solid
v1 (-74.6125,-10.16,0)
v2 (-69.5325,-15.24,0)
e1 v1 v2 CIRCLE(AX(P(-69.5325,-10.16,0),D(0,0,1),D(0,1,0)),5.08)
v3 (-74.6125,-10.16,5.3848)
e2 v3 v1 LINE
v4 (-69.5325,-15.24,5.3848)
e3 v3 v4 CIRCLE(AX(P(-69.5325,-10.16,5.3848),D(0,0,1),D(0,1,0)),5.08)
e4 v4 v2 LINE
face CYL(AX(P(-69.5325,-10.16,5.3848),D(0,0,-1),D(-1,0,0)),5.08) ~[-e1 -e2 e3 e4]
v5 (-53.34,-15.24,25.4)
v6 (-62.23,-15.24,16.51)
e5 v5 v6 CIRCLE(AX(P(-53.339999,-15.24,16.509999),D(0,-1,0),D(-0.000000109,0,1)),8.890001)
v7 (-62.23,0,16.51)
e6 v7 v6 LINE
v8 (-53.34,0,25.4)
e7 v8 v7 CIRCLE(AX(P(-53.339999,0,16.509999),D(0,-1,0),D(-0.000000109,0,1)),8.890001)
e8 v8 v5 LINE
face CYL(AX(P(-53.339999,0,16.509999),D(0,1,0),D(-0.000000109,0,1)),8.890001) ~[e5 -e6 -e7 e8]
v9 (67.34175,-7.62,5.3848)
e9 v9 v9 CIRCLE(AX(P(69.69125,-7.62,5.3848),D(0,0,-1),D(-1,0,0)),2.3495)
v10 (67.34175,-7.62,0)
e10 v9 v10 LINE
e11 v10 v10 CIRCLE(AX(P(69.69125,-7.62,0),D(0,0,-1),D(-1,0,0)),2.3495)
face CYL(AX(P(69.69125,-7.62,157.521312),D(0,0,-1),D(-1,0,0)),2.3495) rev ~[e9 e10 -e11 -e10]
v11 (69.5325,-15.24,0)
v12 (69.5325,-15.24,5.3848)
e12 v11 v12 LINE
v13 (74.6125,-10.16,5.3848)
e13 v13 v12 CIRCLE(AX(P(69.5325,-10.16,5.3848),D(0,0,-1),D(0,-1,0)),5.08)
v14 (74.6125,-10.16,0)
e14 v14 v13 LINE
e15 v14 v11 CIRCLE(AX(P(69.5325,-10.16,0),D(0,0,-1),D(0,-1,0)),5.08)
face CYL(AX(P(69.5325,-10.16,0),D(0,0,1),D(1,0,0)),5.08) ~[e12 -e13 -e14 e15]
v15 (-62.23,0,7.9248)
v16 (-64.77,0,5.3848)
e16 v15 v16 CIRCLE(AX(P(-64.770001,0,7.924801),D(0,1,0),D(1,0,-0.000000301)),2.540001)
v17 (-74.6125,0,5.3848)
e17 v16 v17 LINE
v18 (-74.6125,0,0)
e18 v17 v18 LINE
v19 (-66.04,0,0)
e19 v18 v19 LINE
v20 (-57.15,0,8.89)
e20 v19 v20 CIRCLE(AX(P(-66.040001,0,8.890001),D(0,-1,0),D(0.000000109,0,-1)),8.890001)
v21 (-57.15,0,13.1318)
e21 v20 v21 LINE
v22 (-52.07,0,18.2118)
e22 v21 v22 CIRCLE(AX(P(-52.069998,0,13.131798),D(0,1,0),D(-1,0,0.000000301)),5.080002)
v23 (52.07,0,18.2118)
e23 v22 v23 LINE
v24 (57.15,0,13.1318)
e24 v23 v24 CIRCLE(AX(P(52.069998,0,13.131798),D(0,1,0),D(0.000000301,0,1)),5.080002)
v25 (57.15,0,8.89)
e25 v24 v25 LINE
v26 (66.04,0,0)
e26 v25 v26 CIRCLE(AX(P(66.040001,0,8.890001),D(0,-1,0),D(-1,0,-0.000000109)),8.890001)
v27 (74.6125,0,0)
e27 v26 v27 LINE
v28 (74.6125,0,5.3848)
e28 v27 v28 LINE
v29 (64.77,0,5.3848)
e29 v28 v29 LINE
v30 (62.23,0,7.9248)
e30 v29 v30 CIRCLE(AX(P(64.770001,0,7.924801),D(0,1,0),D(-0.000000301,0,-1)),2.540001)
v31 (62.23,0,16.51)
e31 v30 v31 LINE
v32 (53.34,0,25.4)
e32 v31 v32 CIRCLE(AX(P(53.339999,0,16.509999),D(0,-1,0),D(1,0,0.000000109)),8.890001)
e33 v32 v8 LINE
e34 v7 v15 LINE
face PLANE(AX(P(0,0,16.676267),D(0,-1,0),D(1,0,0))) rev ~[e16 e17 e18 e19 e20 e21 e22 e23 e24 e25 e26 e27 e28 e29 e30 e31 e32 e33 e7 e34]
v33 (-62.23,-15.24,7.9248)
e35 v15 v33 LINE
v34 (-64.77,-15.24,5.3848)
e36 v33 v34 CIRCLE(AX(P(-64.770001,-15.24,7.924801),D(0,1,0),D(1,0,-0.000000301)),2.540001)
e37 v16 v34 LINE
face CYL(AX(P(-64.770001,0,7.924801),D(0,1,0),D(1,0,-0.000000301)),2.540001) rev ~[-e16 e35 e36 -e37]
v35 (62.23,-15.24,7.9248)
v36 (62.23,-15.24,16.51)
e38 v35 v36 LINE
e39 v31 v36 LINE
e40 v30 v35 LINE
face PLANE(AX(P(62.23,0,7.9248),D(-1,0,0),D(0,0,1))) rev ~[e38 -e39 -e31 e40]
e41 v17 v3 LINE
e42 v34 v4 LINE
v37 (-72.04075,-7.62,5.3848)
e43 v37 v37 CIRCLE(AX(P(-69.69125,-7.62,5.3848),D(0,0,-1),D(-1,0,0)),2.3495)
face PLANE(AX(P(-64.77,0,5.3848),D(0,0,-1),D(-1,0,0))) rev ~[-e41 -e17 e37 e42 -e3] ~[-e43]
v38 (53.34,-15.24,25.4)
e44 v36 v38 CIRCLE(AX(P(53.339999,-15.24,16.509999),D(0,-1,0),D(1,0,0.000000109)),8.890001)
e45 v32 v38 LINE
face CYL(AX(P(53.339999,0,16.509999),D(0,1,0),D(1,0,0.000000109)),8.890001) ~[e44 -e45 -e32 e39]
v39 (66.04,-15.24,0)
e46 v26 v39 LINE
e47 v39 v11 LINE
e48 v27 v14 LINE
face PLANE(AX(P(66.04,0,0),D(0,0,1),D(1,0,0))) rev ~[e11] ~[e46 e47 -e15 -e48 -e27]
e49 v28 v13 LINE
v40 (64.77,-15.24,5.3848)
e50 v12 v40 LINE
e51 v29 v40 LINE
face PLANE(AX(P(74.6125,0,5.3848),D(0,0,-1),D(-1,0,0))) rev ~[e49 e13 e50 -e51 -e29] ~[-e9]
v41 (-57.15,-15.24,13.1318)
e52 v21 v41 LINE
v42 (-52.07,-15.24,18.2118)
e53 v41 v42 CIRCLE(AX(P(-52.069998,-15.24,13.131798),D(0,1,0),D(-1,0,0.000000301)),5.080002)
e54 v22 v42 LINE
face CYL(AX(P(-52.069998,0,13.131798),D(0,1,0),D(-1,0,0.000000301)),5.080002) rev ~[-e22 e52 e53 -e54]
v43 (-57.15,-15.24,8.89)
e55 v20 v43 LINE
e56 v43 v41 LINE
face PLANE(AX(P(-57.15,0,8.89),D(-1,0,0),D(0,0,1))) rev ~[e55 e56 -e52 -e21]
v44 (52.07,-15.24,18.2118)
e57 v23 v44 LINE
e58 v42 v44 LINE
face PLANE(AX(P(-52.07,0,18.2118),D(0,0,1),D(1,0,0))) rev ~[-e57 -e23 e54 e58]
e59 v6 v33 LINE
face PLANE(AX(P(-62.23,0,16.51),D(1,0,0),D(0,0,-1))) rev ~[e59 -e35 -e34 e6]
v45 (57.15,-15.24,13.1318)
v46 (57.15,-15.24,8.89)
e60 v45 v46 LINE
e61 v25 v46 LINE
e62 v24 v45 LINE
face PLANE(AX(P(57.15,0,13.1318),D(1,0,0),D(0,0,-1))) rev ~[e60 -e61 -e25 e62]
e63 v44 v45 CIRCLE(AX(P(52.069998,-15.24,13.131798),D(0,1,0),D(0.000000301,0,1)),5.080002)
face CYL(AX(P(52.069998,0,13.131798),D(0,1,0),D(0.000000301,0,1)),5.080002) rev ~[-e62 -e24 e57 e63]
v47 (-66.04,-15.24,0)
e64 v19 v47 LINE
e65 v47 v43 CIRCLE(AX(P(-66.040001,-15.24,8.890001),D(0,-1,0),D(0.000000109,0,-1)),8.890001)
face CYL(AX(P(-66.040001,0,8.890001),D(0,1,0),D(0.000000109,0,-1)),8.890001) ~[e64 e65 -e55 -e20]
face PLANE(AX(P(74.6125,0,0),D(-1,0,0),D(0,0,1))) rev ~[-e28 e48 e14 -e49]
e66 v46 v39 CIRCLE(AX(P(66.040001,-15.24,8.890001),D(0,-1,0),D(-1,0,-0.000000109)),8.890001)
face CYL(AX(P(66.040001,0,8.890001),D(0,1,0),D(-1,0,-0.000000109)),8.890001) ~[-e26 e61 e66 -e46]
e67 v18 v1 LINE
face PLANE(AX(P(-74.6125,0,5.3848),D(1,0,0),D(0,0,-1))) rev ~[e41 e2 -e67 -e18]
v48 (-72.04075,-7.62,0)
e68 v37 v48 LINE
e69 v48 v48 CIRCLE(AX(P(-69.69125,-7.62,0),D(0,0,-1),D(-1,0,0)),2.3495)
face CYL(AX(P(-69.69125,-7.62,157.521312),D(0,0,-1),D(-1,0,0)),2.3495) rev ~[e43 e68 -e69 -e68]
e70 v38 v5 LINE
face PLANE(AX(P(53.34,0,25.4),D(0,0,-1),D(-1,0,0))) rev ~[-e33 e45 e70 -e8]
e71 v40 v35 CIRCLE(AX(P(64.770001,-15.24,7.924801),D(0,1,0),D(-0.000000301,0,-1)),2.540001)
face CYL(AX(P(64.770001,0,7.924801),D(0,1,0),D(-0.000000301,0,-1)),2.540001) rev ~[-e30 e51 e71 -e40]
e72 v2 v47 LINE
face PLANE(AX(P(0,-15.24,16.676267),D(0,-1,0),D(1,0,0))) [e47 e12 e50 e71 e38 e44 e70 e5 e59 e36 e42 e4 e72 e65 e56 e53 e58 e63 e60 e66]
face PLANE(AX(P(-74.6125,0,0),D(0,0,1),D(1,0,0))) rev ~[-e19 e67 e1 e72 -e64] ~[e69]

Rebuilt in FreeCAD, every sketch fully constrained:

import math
import FreeCAD as App
import Part
import Sketcher
Q = App.Units.Quantity


def edges_at(feature, points):
    """Names of the edges that pass closest to the given points."""
    edges = feature.Shape.Edges
    near = lambda p: min(range(len(edges)), key=lambda i: edges[i].distToShape(Part.Vertex(*p))[0])
    return sorted({f"Edge{near(p) + 1}" for p in points})

doc = App.newDocument("Part")
params = doc.addObject("Spreadsheet::Sheet", "Params")
for row, (alias, value) in enumerate([
    ("sketch1_radius", "0.1 in"),
    ("sketch1_radius2", "0.2000001 in"),
    ("sketch1_radius3", "0.35 in"),
    ("sketch1_width", "4.2 in"),
    ("sketch1_width2", "4.1 in"),
    ("pad1_length", "0.6 in"),
    ("fillet_radius", "0.2 in"),
    ("sketch2_diameter", "0.185 in"),
    ("hole_diameter", "0.185 in"),
], start=1):
    params.set(f"A{row}", alias)
    params.set(f"B{row}", "=" + value)
    params.setAlias(f"B{row}", alias)

body = doc.addObject("PartDesign::Body", "Body")

sketch1 = body.newObject("Sketcher::SketchObject", "Sketch")
sketch1.AttachmentSupport = (doc.getObject("XZ_Plane"), [""])
sketch1.MapMode = "FlatFace"
sketch1.addGeometry([
    Part.LineSegment(App.Vector(53.3, 25.4, 0), App.Vector(-53.3, 25.4, 0)),
    Part.ArcOfCircle(Part.Circle(App.Vector(-53.3, 16.5, 0), App.Vector(0, 0, 1), 8.9), math.radians(90), math.radians(180)),
    Part.LineSegment(App.Vector(-62.2, 16.5, 0), App.Vector(-62.2, 7.9, 0)),
    Part.ArcOfCircle(Part.Circle(App.Vector(-64.8, 7.9, 0), App.Vector(0, 0, 1), 2.5), math.radians(-90), math.radians(0)),
    Part.LineSegment(App.Vector(-64.8, 5.4, 0), App.Vector(-74.6, 5.4, 0)),
    Part.LineSegment(App.Vector(-74.6, 5.4, 0), App.Vector(-74.6, 0, 0)),
    Part.LineSegment(App.Vector(-74.6, 0, 0), App.Vector(-66, 0, 0)),
    Part.ArcOfCircle(Part.Circle(App.Vector(-66, 8.9, 0), App.Vector(0, 0, 1), 8.9), math.radians(-90), math.radians(0)),
    Part.LineSegment(App.Vector(-57.1, 8.9, 0), App.Vector(-57.1, 13.1, 0)),
    Part.ArcOfCircle(Part.Circle(App.Vector(-52.1, 13.1, 0), App.Vector(0, 0, 1), 5.1), math.radians(90), math.radians(180)),
    Part.LineSegment(App.Vector(-52.1, 18.2, 0), App.Vector(52.1, 18.2, 0)),
    Part.ArcOfCircle(Part.Circle(App.Vector(52.1, 13.1, 0), App.Vector(0, 0, 1), 5.1), math.radians(0), math.radians(90)),
    Part.LineSegment(App.Vector(57.1, 13.1, 0), App.Vector(57.1, 8.9, 0)),
    Part.ArcOfCircle(Part.Circle(App.Vector(66, 8.9, 0), App.Vector(0, 0, 1), 8.9), math.radians(-180), math.radians(-90)),
    Part.LineSegment(App.Vector(66, 0, 0), App.Vector(74.6, 0, 0)),
    Part.LineSegment(App.Vector(74.6, 0, 0), App.Vector(74.6, 5.4, 0)),
    Part.LineSegment(App.Vector(74.6, 5.4, 0), App.Vector(64.8, 5.4, 0)),
    Part.ArcOfCircle(Part.Circle(App.Vector(64.8, 7.9, 0), App.Vector(0, 0, 1), 2.5), math.radians(-180), math.radians(-90)),
    Part.LineSegment(App.Vector(62.2, 7.9, 0), App.Vector(62.2, 16.5, 0)),
    Part.ArcOfCircle(Part.Circle(App.Vector(53.3, 16.5, 0), App.Vector(0, 0, 1), 8.9), math.radians(0), math.radians(90)),
], False)
sketch1.addConstraint([
    Sketcher.Constraint("Tangent", 0, 2, 1, 1),
    Sketcher.Constraint("Tangent", 1, 2, 2, 1),
    Sketcher.Constraint("Tangent", 2, 2, 3, 2),
    Sketcher.Constraint("Tangent", 3, 1, 4, 1),
    Sketcher.Constraint("Coincident", 4, 2, 5, 1),
    Sketcher.Constraint("Coincident", 5, 2, 6, 1),
    Sketcher.Constraint("Tangent", 6, 2, 7, 1),
    Sketcher.Constraint("Tangent", 7, 2, 8, 1),
    Sketcher.Constraint("Tangent", 8, 2, 9, 2),
    Sketcher.Constraint("Tangent", 9, 1, 10, 1),
    Sketcher.Constraint("Tangent", 10, 2, 11, 2),
    Sketcher.Constraint("Tangent", 11, 1, 12, 1),
    Sketcher.Constraint("Tangent", 12, 2, 13, 1),
    Sketcher.Constraint("Tangent", 13, 2, 14, 1),
    Sketcher.Constraint("Coincident", 14, 2, 15, 1),
    Sketcher.Constraint("Coincident", 15, 2, 16, 1),
    Sketcher.Constraint("Tangent", 16, 2, 17, 2),
    Sketcher.Constraint("Tangent", 17, 1, 18, 1),
    Sketcher.Constraint("Tangent", 18, 2, 19, 1),
    Sketcher.Constraint("Tangent", 19, 2, 0, 1),
    Sketcher.Constraint("Horizontal", 0),
    Sketcher.Constraint("Vertical", 2),
    Sketcher.Constraint("Horizontal", 4),
    Sketcher.Constraint("Vertical", 5),
    Sketcher.Constraint("Horizontal", 6),
    Sketcher.Constraint("Vertical", 8),
    Sketcher.Constraint("Horizontal", 10),
    Sketcher.Constraint("Vertical", 12),
    Sketcher.Constraint("Horizontal", 14),
    Sketcher.Constraint("Vertical", 15),
    Sketcher.Constraint("Horizontal", 16),
    Sketcher.Constraint("Vertical", 18),
    Sketcher.Constraint("Equal", 1, 7),
    Sketcher.Constraint("Equal", 9, 11),
    Sketcher.Constraint("Equal", 7, 13),
    Sketcher.Constraint("Equal", 3, 17),
    Sketcher.Constraint("Equal", 13, 19),
    Sketcher.Constraint("Symmetric", 6, 2, 13, 2, -1, 1),
    Sketcher.Constraint("Symmetric", 3, 3, 17, 3, -2),
    Sketcher.Constraint("Symmetric", 5, 2, 14, 2, -2),
    Sketcher.Constraint("Radius", 3, Q("0.1 in")),
    Sketcher.Constraint("Radius", 9, Q("0.2000001 in")),
    Sketcher.Constraint("Radius", 1, Q("0.35 in")),
    Sketcher.Constraint("DistanceX", 0, 2, 0, 1, Q("4.2 in")),
    Sketcher.Constraint("DistanceX", 10, 1, 10, 2, Q("4.1 in")),
    Sketcher.Constraint("DistanceY", -1, 1, 0, 2, Q("1 in")),
    Sketcher.Constraint("DistanceY", 2, 2, 2, 1, Q("0.338 in")),
    Sketcher.Constraint("DistanceY", 8, 1, 8, 2, Q("0.167 in")),
    Sketcher.Constraint("DistanceX", 4, 2, 4, 1, Q("0.3875 in")),
])
sketch1.setExpression("Constraints[40]", "Params.sketch1_radius")
sketch1.setExpression("Constraints[41]", "Params.sketch1_radius2")
sketch1.setExpression("Constraints[42]", "Params.sketch1_radius3")
sketch1.setExpression("Constraints[43]", "Params.sketch1_width")
sketch1.setExpression("Constraints[44]", "Params.sketch1_width2")
pad1 = body.newObject("PartDesign::Pad", "Pad")
pad1.Profile = sketch1
pad1.setExpression("Length", "Params.pad1_length")
doc.recompute()

fillet = body.newObject("PartDesign::Fillet", "Fillet")
fillet.Base = (pad1, edges_at(pad1, [(-74.612, -15.24, 2.692), (74.612, -15.24, 2.692)]))
fillet.setExpression("Radius", "Params.fillet_radius")

sketch2 = body.newObject("Sketcher::SketchObject", "Sketch001")
sketch2.AttachmentSupport = (doc.getObject("XY_Plane"), [""])
sketch2.MapMode = "FlatFace"
sketch2.AttachmentOffset = App.Placement(App.Vector(0, 0, 0.212 * 25.4), App.Rotation())
sketch2.addGeometry([
    Part.Circle(App.Vector(-69.7, -7.6, 0), App.Vector(0, 0, 1), 2.3),
    Part.Circle(App.Vector(69.7, -7.6, 0), App.Vector(0, 0, 1), 2.3),
], False)
sketch2.addConstraint([
    Sketcher.Constraint("Equal", 0, 1),
    Sketcher.Constraint("Symmetric", 0, 3, 1, 3, -2),
    Sketcher.Constraint("Diameter", 0, Q("0.185 in")),
    Sketcher.Constraint("DistanceY", 0, 3, -1, 1, Q("0.3 in")),
    Sketcher.Constraint("DistanceX", 0, 3, 1, 3, Q("5.4875 in")),
])
sketch2.setExpression("Constraints[2]", "Params.sketch2_diameter")
doc.recompute()
hole = body.newObject("PartDesign::Hole", "Hole")
hole.Profile = sketch2
hole.ThreadType = "None"
hole.setExpression("Diameter", "Params.hole_diameter")
hole.DepthType = "ThroughAll"

doc.recompute()
